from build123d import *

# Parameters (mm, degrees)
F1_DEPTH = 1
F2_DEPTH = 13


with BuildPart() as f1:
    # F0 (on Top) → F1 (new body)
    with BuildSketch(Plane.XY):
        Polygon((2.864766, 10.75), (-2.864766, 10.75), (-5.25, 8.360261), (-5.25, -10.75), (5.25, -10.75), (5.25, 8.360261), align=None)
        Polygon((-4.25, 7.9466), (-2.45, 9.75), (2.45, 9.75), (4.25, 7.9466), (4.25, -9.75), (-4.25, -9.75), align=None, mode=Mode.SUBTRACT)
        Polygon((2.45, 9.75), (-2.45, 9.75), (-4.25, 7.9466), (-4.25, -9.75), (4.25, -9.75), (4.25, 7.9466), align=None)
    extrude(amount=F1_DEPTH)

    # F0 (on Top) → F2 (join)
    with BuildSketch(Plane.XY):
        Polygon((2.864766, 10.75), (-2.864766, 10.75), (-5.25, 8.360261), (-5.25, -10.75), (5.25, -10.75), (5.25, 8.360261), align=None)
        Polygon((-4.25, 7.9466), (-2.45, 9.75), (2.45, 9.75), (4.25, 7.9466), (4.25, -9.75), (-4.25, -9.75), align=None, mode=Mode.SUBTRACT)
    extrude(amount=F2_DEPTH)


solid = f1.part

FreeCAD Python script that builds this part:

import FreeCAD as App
import Part
import Sketcher
from FreeCAD import Vector
Q = App.Units.Quantity

doc = App.newDocument("Part")
body = doc.addObject("PartDesign::Body", "Body")

# Sketch on XY plane
sketch1 = body.newObject("Sketcher::SketchObject", "Sketch")
sketch1.AttachmentSupport = (doc.getObject("XY_Plane"), [""])
sketch1.MapMode = "FlatFace"
sketch1.addGeometry([
    Part.LineSegment(Vector(2.864766, 10.75, 0), Vector(-2.864766, 10.75, 0)),  # 0
    Part.LineSegment(Vector(-2.864766, 10.75, 0), Vector(-5.25, 8.360261, 0)),  # 1
    Part.LineSegment(Vector(-5.25, 8.360261, 0), Vector(-5.25, -10.75, 0)),  # 2
    Part.LineSegment(Vector(-5.25, -10.75, 0), Vector(5.25, -10.75, 0)),  # 3
    Part.LineSegment(Vector(5.25, -10.75, 0), Vector(5.25, 8.360261, 0)),  # 4
    Part.LineSegment(Vector(5.25, 8.360261, 0), Vector(2.864766, 10.75, 0)),  # 5
], False)
sketch1.addConstraint([
    Sketcher.Constraint("Coincident", 0, 2, 1, 1),
    Sketcher.Constraint("Coincident", 1, 2, 2, 1),
    Sketcher.Constraint("Coincident", 2, 2, 3, 1),
    Sketcher.Constraint("Coincident", 3, 2, 4, 1),
    Sketcher.Constraint("Coincident", 4, 2, 5, 1),
    Sketcher.Constraint("Coincident", 5, 2, 0, 1),
    Sketcher.Constraint("Horizontal", 0),
    Sketcher.Constraint("Vertical", 2),
    Sketcher.Constraint("Horizontal", 3),
    Sketcher.Constraint("Vertical", 4),
    Sketcher.Constraint("Symmetric", 1, 2, 4, 2, -2),
    Sketcher.Constraint("Equal", 1, 5),
    Sketcher.Constraint("DistanceX", 3, 1, 3, 2, Q("10.5 mm")),
    Sketcher.Constraint("DistanceY", 2, 2, 0, 2, Q("21.5 mm")),
    Sketcher.Constraint("DistanceY", -1, 1, 0, 2, Q("10.75 mm")),
    Sketcher.Constraint("DistanceY", 2, 2, 2, 1, Q("19.110261 mm")),
    Sketcher.Constraint("DistanceX", 0, 2, 0, 1, Q("5.729532 mm")),
])
pad1 = body.newObject("PartDesign::Pad", "Pad")
pad1.Profile = sketch1
pad1.Length = 1

# Sketch on XY plane
sketch2 = body.newObject("Sketcher::SketchObject", "Sketch001")
sketch2.AttachmentSupport = (doc.getObject("XY_Plane"), [""])
sketch2.MapMode = "FlatFace"
sketch2.addGeometry([
    Part.LineSegment(Vector(2.864766, 10.75, 0), Vector(-2.864766, 10.75, 0)),  # 0
    Part.LineSegment(Vector(-2.864766, 10.75, 0), Vector(-5.25, 8.360261, 0)),  # 1
    Part.LineSegment(Vector(-5.25, 8.360261, 0), Vector(-5.25, -10.75, 0)),  # 2
    Part.LineSegment(Vector(-5.25, -10.75, 0), Vector(5.25, -10.75, 0)),  # 3
    Part.LineSegment(Vector(5.25, -10.75, 0), Vector(5.25, 8.360261, 0)),  # 4
    Part.LineSegment(Vector(5.25, 8.360261, 0), Vector(2.864766, 10.75, 0)),  # 5
    Part.LineSegment(Vector(-4.25, -9.75, 0), Vector(-4.25, 7.9466, 0)),  # 6
    Part.LineSegment(Vector(-4.25, 7.9466, 0), Vector(-2.45, 9.75, 0)),  # 7
    Part.LineSegment(Vector(-2.45, 9.75, 0), Vector(2.45, 9.75, 0)),  # 8
    Part.LineSegment(Vector(2.45, 9.75, 0), Vector(4.25, 7.9466, 0)),  # 9
    Part.LineSegment(Vector(4.25, 7.9466, 0), Vector(4.25, -9.75, 0)),  # 10
    Part.LineSegment(Vector(4.25, -9.75, 0), Vector(-4.25, -9.75, 0)),  # 11
], False)
sketch2.addConstraint([
    Sketcher.Constraint("Coincident", 0, 2, 1, 1),
    Sketcher.Constraint("Coincident", 1, 2, 2, 1),
    Sketcher.Constraint("Coincident", 2, 2, 3, 1),
    Sketcher.Constraint("Coincident", 3, 2, 4, 1),
    Sketcher.Constraint("Coincident", 4, 2, 5, 1),
    Sketcher.Constraint("Coincident", 5, 2, 0, 1),
    Sketcher.Constraint("Coincident", 6, 2, 7, 1),
    Sketcher.Constraint("Coincident", 7, 2, 8, 1),
    Sketcher.Constraint("Coincident", 8, 2, 9, 1),
    Sketcher.Constraint("Coincident", 9, 2, 10, 1),
    Sketcher.Constraint("Coincident", 10, 2, 11, 1),
    Sketcher.Constraint("Coincident", 11, 2, 6, 1),
    Sketcher.Constraint("Horizontal", 0),
    Sketcher.Constraint("Vertical", 2),
    Sketcher.Constraint("Horizontal", 3),
    Sketcher.Constraint("Vertical", 4),
    Sketcher.Constraint("Vertical", 6),
    Sketcher.Constraint("Horizontal", 8),
    Sketcher.Constraint("Vertical", 10),
    Sketcher.Constraint("Horizontal", 11),
    Sketcher.Constraint("Symmetric", 1, 2, 4, 2, -2),
    Sketcher.Constraint("Symmetric", 6, 2, 9, 2, -2),
    Sketcher.Constraint("Parallel", 1, 7),
    Sketcher.Constraint("Parallel", 5, 9),
    Sketcher.Constraint("Equal", 1, 5),
    Sketcher.Constraint("DistanceX", 3, 1, 3, 2, Q("10.5 mm")),
    Sketcher.Constraint("DistanceX", 8, 1, 8, 2, Q("4.9 mm")),
    Sketcher.Constraint("DistanceX", 11, 2, 11, 1, Q("8.5 mm")),
    Sketcher.Constraint("DistanceY", 7, 2, 0, 2, Q("1 mm")),
    Sketcher.Constraint("DistanceY", 3, 2, 10, 2, Q("1 mm")),
    Sketcher.Constraint("DistanceY", 2, 2, 0, 2, Q("21.5 mm")),
    Sketcher.Constraint("DistanceY", -1, 1, 0, 2, Q("10.75 mm")),
    Sketcher.Constraint("DistanceY", 6, 1, 6, 2, Q("17.6966 mm")),
    Sketcher.Constraint("DistanceY", 2, 2, 2, 1, Q("19.110261 mm")),
])
pad2 = body.newObject("PartDesign::Pad", "Pad001")
pad2.Profile = sketch2
pad2.Length = 13

doc.recompute()
